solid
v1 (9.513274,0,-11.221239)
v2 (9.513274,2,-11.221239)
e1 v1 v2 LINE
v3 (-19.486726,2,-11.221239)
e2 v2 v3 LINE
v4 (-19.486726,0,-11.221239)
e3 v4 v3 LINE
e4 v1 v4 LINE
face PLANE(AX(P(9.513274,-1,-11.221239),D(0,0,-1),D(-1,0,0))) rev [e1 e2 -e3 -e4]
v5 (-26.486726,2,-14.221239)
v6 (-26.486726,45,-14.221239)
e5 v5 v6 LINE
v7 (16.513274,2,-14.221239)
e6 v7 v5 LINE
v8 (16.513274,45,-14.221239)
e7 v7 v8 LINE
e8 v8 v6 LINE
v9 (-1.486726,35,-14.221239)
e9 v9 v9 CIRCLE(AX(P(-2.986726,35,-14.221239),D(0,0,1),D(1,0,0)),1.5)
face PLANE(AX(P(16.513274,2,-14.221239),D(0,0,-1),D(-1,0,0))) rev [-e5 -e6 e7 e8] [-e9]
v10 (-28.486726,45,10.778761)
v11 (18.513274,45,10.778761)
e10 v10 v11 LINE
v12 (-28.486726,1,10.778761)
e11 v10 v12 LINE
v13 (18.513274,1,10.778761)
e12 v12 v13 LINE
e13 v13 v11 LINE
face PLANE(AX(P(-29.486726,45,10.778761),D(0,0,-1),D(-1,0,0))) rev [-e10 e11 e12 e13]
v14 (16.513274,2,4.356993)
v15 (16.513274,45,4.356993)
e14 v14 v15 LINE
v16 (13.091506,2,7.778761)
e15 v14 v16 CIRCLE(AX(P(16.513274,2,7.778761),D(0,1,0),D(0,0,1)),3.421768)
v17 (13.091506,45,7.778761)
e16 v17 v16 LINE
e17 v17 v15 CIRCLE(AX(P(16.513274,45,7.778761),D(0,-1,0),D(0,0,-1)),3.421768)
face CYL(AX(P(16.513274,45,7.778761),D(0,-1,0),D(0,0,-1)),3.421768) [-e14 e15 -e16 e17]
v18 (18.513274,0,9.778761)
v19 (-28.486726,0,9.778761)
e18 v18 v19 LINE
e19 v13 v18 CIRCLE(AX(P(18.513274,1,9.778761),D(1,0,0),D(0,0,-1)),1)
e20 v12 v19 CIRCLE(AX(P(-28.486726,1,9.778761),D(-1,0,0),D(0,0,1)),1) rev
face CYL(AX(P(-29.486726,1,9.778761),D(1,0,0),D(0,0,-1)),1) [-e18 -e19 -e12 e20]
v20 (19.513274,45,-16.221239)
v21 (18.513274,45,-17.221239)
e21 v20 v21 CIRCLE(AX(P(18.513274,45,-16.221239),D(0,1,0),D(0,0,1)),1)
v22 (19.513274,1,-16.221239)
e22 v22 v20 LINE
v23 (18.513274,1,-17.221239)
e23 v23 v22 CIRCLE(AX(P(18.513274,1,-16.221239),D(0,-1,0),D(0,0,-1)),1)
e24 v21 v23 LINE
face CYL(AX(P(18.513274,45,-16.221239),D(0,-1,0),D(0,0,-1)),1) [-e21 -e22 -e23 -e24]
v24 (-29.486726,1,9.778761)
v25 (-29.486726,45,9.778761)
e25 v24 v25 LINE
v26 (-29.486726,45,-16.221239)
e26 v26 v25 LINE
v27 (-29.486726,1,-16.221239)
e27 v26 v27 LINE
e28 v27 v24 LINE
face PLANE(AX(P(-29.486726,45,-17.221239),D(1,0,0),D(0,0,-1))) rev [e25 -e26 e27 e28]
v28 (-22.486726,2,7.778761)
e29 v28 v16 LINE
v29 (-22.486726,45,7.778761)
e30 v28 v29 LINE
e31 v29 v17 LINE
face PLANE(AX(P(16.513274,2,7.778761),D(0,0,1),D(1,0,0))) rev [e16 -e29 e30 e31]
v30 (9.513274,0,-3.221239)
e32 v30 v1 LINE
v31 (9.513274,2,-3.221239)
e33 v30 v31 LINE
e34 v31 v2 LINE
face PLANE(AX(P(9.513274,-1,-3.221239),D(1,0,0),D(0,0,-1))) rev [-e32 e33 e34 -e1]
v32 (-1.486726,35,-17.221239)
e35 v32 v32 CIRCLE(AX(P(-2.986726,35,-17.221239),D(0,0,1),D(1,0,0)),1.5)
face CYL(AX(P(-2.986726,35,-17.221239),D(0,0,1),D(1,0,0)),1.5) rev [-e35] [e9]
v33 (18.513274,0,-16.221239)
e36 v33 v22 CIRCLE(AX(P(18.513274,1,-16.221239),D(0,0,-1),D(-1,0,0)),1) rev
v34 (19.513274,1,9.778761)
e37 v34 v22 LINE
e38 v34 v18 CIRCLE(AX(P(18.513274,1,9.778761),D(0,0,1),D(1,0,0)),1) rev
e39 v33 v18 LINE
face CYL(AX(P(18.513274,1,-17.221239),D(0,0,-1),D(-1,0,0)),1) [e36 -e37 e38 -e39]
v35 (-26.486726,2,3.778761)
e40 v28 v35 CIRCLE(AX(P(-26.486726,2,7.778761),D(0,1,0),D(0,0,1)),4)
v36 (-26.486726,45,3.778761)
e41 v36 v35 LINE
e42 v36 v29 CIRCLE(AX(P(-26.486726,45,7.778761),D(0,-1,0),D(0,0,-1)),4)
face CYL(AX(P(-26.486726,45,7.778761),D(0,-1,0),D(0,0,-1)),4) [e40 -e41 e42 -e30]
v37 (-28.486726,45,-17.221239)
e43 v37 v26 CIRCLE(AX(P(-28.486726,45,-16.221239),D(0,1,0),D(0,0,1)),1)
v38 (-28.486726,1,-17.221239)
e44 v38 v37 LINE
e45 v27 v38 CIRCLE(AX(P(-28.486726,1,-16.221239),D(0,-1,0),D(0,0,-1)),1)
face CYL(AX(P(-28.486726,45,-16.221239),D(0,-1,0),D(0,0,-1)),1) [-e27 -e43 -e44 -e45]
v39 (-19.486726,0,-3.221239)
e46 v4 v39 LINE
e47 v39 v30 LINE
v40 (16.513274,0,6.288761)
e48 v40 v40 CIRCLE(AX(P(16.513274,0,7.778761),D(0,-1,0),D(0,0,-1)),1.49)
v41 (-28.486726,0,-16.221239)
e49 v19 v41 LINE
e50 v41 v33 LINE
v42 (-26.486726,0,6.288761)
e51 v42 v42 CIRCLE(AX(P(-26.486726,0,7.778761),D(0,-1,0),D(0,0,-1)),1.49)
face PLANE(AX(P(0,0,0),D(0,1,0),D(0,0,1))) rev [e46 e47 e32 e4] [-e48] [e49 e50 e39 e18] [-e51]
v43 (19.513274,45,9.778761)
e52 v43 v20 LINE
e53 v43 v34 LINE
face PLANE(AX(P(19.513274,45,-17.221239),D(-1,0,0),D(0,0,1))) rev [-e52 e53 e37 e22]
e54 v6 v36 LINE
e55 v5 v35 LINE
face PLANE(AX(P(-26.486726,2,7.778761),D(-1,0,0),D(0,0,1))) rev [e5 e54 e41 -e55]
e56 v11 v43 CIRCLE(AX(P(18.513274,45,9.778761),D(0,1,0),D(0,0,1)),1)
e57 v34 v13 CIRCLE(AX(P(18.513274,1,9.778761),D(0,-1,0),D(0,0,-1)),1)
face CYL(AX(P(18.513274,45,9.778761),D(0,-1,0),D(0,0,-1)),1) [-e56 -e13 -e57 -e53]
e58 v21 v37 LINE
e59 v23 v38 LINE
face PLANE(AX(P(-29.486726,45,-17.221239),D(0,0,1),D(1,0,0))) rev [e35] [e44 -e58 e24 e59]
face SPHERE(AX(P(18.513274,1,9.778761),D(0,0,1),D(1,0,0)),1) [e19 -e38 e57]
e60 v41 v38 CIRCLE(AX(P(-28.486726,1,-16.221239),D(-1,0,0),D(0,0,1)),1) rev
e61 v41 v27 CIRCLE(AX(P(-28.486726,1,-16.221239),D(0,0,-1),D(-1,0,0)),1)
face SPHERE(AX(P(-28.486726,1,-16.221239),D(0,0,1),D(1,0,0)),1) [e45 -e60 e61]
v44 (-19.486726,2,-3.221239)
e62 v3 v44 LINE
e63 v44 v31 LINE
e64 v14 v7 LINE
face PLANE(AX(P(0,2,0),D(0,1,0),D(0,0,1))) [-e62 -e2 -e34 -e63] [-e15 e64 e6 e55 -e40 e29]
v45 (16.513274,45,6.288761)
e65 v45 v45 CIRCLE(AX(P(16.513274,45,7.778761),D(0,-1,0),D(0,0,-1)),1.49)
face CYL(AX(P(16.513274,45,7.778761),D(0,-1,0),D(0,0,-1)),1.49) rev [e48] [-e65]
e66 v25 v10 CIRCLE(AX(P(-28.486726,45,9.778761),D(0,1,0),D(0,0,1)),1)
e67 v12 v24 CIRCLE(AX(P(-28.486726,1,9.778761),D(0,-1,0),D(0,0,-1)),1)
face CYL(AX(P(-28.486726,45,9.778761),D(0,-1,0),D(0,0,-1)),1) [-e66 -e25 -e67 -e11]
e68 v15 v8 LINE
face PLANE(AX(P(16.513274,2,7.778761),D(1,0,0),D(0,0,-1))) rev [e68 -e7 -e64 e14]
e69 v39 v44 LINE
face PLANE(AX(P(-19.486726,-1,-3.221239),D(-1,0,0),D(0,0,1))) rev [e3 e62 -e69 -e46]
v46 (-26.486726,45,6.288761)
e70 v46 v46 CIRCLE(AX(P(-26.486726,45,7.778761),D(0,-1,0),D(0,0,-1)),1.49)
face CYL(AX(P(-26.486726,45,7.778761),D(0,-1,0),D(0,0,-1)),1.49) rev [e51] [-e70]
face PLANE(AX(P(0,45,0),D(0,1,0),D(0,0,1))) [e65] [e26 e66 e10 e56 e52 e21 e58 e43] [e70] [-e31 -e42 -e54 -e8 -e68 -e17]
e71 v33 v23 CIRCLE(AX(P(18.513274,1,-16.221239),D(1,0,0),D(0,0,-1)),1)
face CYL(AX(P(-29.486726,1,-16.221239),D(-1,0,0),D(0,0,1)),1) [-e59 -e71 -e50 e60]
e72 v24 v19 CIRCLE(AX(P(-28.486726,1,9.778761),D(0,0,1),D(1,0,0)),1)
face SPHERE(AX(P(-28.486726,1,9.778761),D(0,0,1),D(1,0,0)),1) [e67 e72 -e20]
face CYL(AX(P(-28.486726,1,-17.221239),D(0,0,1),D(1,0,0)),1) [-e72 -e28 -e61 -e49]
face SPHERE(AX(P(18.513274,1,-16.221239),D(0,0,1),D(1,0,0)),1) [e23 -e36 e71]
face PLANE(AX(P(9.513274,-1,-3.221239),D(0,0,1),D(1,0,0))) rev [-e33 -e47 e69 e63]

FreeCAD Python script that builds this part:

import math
import FreeCAD as App
import Part
import Sketcher

V = App.Vector
Q = App.Units.Quantity


def edges_at(feature, points):
    """Names of the edges that pass closest to the given points."""
    edges = feature.Shape.Edges
    near = lambda p: min(range(len(edges)), key=lambda i: edges[i].distToShape(Part.Vertex(*p))[0])
    return sorted({f"Edge{near(p) + 1}" for p in points})


def add_polygon(sketch, points):
    """Adds a closed chain of lines whose ends are joined by coincident constraints."""
    first, n = sketch.GeometryCount, len(points)
    for a, b in zip(points, points[1:] + points[:1]):
        sketch.addGeometry(Part.LineSegment(App.Vector(*a, 0), App.Vector(*b, 0)), False)
    for i in range(n):
        sketch.addConstraint(Sketcher.Constraint("Coincident", first + i, 2, first + (i + 1) % n, 1))

doc = App.newDocument("Part")
body = doc.addObject("PartDesign::Body", "Body")

sketch1 = body.newObject("Sketcher::SketchObject", "Sketch")
sketch1.AttachmentSupport = (doc.getObject("XZ_Plane"), [""])
sketch1.MapMode = "FlatFace"
add_polygon(sketch1, [(-29, -17), (-29, 11), (20, 11), (20, -17)])
sketch1.addConstraint(Sketcher.Constraint("Vertical", 0))
sketch1.addConstraint(Sketcher.Constraint("Horizontal", 1))
sketch1.addConstraint(Sketcher.Constraint("Vertical", 2))
sketch1.addConstraint(Sketcher.Constraint("Horizontal", 3))
sketch1.addConstraint(Sketcher.Constraint("DistanceX", 1, 1, 1, 2, Q("49 mm")))
sketch1.addConstraint(Sketcher.Constraint("DistanceY", 0, 1, 0, 2, Q("28 mm")))
sketch1.addConstraint(Sketcher.Constraint("DistanceY", -1, 1, 0, 2, Q("10.778761 mm")))
sketch1.addConstraint(Sketcher.Constraint("DistanceX", 0, 2, -1, 1, Q("29.486726 mm")))
pad1 = body.newObject("PartDesign::Pad", "Pad")
pad1.Profile = sketch1
pad1.Length = 45
pad1.Reversed = True

sketch2 = body.newObject("Sketcher::SketchObject", "Sketch001")
sketch2.AttachmentSupport = (doc.getObject("XZ_Plane"), [""])
sketch2.MapMode = "FlatFace"
sketch2.AttachmentOffset = App.Placement(V(0, 0, -45), App.Rotation())
add_polygon(sketch2, [(-26, -14), (-26, 8), (17, 8), (17, -14)])
sketch2.addConstraint(Sketcher.Constraint("Vertical", 0))
sketch2.addConstraint(Sketcher.Constraint("Horizontal", 1))
sketch2.addConstraint(Sketcher.Constraint("Vertical", 2))
sketch2.addConstraint(Sketcher.Constraint("Horizontal", 3))
sketch2.addConstraint(Sketcher.Constraint("DistanceX", 1, 1, 1, 2, Q("43 mm")))
sketch2.addConstraint(Sketcher.Constraint("DistanceY", 0, 1, 0, 2, Q("22 mm")))
sketch2.addConstraint(Sketcher.Constraint("DistanceY", -1, 1, 0, 2, Q("7.778761 mm")))
sketch2.addConstraint(Sketcher.Constraint("DistanceX", 0, 2, -1, 1, Q("26.486726 mm")))
pocket1 = body.newObject("PartDesign::Pocket", "Pocket")
pocket1.Profile = sketch2
pocket1.Length = 43
pocket1.Reversed = True

sketch3 = body.newObject("Sketcher::SketchObject", "Sketch002")
sketch3.AttachmentSupport = (doc.getObject("XZ_Plane"), [""])
sketch3.MapMode = "FlatFace"
sketch3.AttachmentOffset = App.Placement(V(0, 0, -2), App.Rotation())
add_polygon(sketch3, [(-19, -11), (-19, -3), (10, -3), (10, -11)])
sketch3.addConstraint(Sketcher.Constraint("Vertical", 0))
sketch3.addConstraint(Sketcher.Constraint("Horizontal", 1))
sketch3.addConstraint(Sketcher.Constraint("Vertical", 2))
sketch3.addConstraint(Sketcher.Constraint("Horizontal", 3))
sketch3.addConstraint(Sketcher.Constraint("DistanceX", 1, 1, 1, 2, Q("29 mm")))
sketch3.addConstraint(Sketcher.Constraint("DistanceY", 0, 1, 0, 2, Q("8 mm")))
sketch3.addConstraint(Sketcher.Constraint("DistanceY", 0, 2, -1, 1, Q("3.221239 mm")))
sketch3.addConstraint(Sketcher.Constraint("DistanceX", 0, 2, -1, 1, Q("19.486726 mm")))
pocket2 = body.newObject("PartDesign::Pocket", "Pocket001")
pocket2.Profile = sketch3
pocket2.Length = 3
pocket2.Reversed = True

sketch4 = body.newObject("Sketcher::SketchObject", "Sketch003")
sketch4.AttachmentSupport = (doc.getObject("XY_Plane"), [""])
sketch4.MapMode = "FlatFace"
sketch4.AttachmentOffset = App.Placement(V(0, 0, -14.221239), App.Rotation())
sketch4.addGeometry(Part.Circle(V(-3, 35, 0), V(0, 0, 1), 1.5), False)
sketch4.addConstraint(Sketcher.Constraint("Diameter", 0, Q("3 mm")))
sketch4.addConstraint(Sketcher.Constraint("DistanceY", -1, 1, 0, 3, Q("35 mm")))
sketch4.addConstraint(Sketcher.Constraint("DistanceX", 0, 3, -1, 1, Q("2.986726 mm")))
pocket3 = body.newObject("PartDesign::Pocket", "Pocket002")
pocket3.Profile = sketch4
pocket3.Length = 3

sketch5 = body.newObject("Sketcher::SketchObject", "Sketch004")
sketch5.AttachmentSupport = (doc.getObject("XZ_Plane"), [""])
sketch5.MapMode = "FlatFace"
sketch5.addGeometry(Part.LineSegment(V(19.5, 10.8, 0), V(14.9, 10.8, 0)), False)
sketch5.addGeometry(Part.ArcOfCircle(Part.Circle(V(16.5, 7.8, 0), V(0, 0, 1), 3.4), math.radians(119), math.radians(331)), False)
sketch5.addGeometry(Part.LineSegment(V(19.5, 6.1, 0), V(19.5, 10.8, 0)), False)
sketch5.addConstraint(Sketcher.Constraint("Coincident", 0, 2, 1, 1))
sketch5.addConstraint(Sketcher.Constraint("Coincident", 1, 2, 2, 1))
sketch5.addConstraint(Sketcher.Constraint("Coincident", 2, 2, 0, 1))
sketch5.addConstraint(Sketcher.Constraint("Horizontal", 0))
sketch5.addConstraint(Sketcher.Constraint("Vertical", 2))
sketch5.addConstraint(Sketcher.Constraint("Equal", 0, 2))
sketch5.addConstraint(Sketcher.Constraint("DistanceY", 1, 3, 0, 2, Q("3 mm")))
sketch5.addConstraint(Sketcher.Constraint("Radius", 1, Q("3.421768 mm")))
sketch5.addConstraint(Sketcher.Constraint("DistanceY", -1, 1, 1, 3, Q("7.778761 mm")))
sketch5.addConstraint(Sketcher.Constraint("DistanceX", -1, 1, 1, 3, Q("16.513274 mm")))
pad2 = body.newObject("PartDesign::Pad", "Pad001")
pad2.Profile = sketch5
pad2.Length = 45
pad2.Reversed = True

sketch6 = body.newObject("Sketcher::SketchObject", "Sketch005")
sketch6.AttachmentSupport = (doc.getObject("XZ_Plane"), [""])
sketch6.MapMode = "FlatFace"
sketch6.addGeometry(Part.Circle(V(16.5, 7.8, 0), V(0, 0, 1), 1.5), False)
sketch6.addConstraint(Sketcher.Constraint("Diameter", 0, Q("2.98 mm")))
sketch6.addConstraint(Sketcher.Constraint("DistanceY", -1, 1, 0, 3, Q("7.778761 mm")))
sketch6.addConstraint(Sketcher.Constraint("DistanceX", -1, 1, 0, 3, Q("16.513274 mm")))
pocket4 = body.newObject("PartDesign::Pocket", "Pocket003")
pocket4.Profile = sketch6
pocket4.Length = 45

sketch7 = body.newObject("Sketcher::SketchObject", "Sketch006")
sketch7.AttachmentSupport = (doc.getObject("XZ_Plane"), [""])
sketch7.MapMode = "FlatFace"
sketch7.addGeometry(Part.LineSegment(V(-29.5, 10.8, 0), V(-29.5, 5.1, 0)), False)
sketch7.addGeometry(Part.ArcOfCircle(Part.Circle(V(-26.5, 7.8, 0), V(0, 0, 1), 4), math.radians(-139), math.radians(49)), False)
sketch7.addGeometry(Part.LineSegment(V(-23.8, 10.8, 0), V(-29.5, 10.8, 0)), False)
sketch7.addConstraint(Sketcher.Constraint("Coincident", 0, 2, 1, 1))
sketch7.addConstraint(Sketcher.Constraint("Coincident", 1, 2, 2, 1))
sketch7.addConstraint(Sketcher.Constraint("Coincident", 2, 2, 0, 1))
sketch7.addConstraint(Sketcher.Constraint("Vertical", 0))
sketch7.addConstraint(Sketcher.Constraint("Horizontal", 2))
sketch7.addConstraint(Sketcher.Constraint("Equal", 2, 0))
sketch7.addConstraint(Sketcher.Constraint("Radius", 1, Q("4 mm")))
sketch7.addConstraint(Sketcher.Constraint("DistanceX", 0, 2, 1, 3, Q("3 mm")))
sketch7.addConstraint(Sketcher.Constraint("DistanceY", -1, 1, 1, 3, Q("7.778761 mm")))
sketch7.addConstraint(Sketcher.Constraint("DistanceX", 1, 3, -1, 1, Q("26.486726 mm")))
pad3 = body.newObject("PartDesign::Pad", "Pad002")
pad3.Profile = sketch7
pad3.Length = 45
pad3.Reversed = True

sketch8 = body.newObject("Sketcher::SketchObject", "Sketch007")
sketch8.AttachmentSupport = (doc.getObject("XZ_Plane"), [""])
sketch8.MapMode = "FlatFace"
sketch8.addGeometry(Part.Circle(V(-26.5, 7.8, 0), V(0, 0, 1), 1.5), False)
sketch8.addConstraint(Sketcher.Constraint("Diameter", 0, Q("2.98 mm")))
sketch8.addConstraint(Sketcher.Constraint("DistanceY", -1, 1, 0, 3, Q("7.778761 mm")))
sketch8.addConstraint(Sketcher.Constraint("DistanceX", 0, 3, -1, 1, Q("26.486726 mm")))
pocket5 = body.newObject("PartDesign::Pocket", "Pocket004")
pocket5.Profile = sketch8
pocket5.Length = 45
doc.recompute()

fillet = body.newObject("PartDesign::Fillet", "Fillet")
fillet.Base = (pocket5, edges_at(pocket5, [
    (-4.987, 0, -17.221),
    (19.513, 0, -3.221),
    (-4.987, 0, 10.779),
    (-29.487, 0, -3.221),
    (-29.487, 22.5, -17.221),
    (19.513, 22.5, -17.221),
    (19.513, 22.5, 10.779),
    (-29.487, 22.5, 10.779),
]))
fillet.Radius = 1

doc.recompute()
